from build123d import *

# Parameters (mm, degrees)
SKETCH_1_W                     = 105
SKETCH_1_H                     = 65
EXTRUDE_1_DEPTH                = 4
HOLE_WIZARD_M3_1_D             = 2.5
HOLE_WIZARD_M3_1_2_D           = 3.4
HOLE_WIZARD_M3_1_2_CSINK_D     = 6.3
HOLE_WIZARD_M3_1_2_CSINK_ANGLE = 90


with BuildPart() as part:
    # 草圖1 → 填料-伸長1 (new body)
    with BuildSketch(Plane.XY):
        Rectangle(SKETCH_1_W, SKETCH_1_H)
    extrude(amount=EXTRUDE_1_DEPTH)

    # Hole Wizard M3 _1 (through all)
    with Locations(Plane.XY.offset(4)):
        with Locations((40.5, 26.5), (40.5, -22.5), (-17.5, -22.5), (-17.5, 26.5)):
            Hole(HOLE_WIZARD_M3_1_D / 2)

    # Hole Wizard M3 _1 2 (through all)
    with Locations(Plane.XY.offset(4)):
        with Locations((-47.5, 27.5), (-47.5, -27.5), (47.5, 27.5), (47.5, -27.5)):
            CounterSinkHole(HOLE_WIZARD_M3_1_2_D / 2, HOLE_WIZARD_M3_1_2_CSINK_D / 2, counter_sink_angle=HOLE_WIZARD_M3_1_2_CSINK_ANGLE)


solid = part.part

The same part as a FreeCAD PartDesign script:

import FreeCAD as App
import Part
import Sketcher

V = App.Vector
Q = App.Units.Quantity

doc = App.newDocument("Part")
body = doc.addObject("PartDesign::Body", "Body")

# Sketch on XY plane
sketch1 = body.newObject("Sketcher::SketchObject", "Sketch")
sketch1.AttachmentSupport = (doc.getObject("XY_Plane"), [""])
sketch1.MapMode = "FlatFace"
sketch1.addGeometry([
    Part.LineSegment(V(-52, 32, 0), V(-52, -32, 0)),
    Part.LineSegment(V(-52, -32, 0), V(52, -32, 0)),
    Part.LineSegment(V(52, -32, 0), V(52, 32, 0)),
    Part.LineSegment(V(52, 32, 0), V(-52, 32, 0)),
], False)
sketch1.addConstraint([
    Sketcher.Constraint("Coincident", 0, 2, 1, 1),
    Sketcher.Constraint("Coincident", 1, 2, 2, 1),
    Sketcher.Constraint("Coincident", 2, 2, 3, 1),
    Sketcher.Constraint("Coincident", 3, 2, 0, 1),
    Sketcher.Constraint("Vertical", 0),
    Sketcher.Constraint("Horizontal", 1),
    Sketcher.Constraint("Vertical", 2),
    Sketcher.Constraint("Horizontal", 3),
    Sketcher.Constraint("Symmetric", 0, 2, 2, 2, -1, 1),
    Sketcher.Constraint("DistanceX", 1, 1, 1, 2, Q("105 mm")),
    Sketcher.Constraint("DistanceY", 0, 2, 0, 1, Q("65 mm")),
])
pad1 = body.newObject("PartDesign::Pad", "Pad")
pad1.Profile = sketch1
pad1.Length = 4

# Sketch on XY plane
sketch2 = body.newObject("Sketcher::SketchObject", "Sketch001")
sketch2.AttachmentSupport = (doc.getObject("XY_Plane"), [""])
sketch2.MapMode = "FlatFace"
sketch2.AttachmentOffset = App.Placement(V(0, 0, 4), App.Rotation())
sketch2.addGeometry([
    Part.Circle(V(40.5, 26.5, 0), V(0, 0, 1), 1.2),
    Part.Circle(V(40.5, -22.5, 0), V(0, 0, 1), 1.2),
    Part.Circle(V(-17.5, -22.5, 0), V(0, 0, 1), 1.2),
    Part.Circle(V(-17.5, 26.5, 0), V(0, 0, 1), 1.2),
], False)
sketch2.addConstraint([
    Sketcher.Constraint("Equal", 0, 1),
    Sketcher.Constraint("Equal", 1, 2),
    Sketcher.Constraint("Equal", 2, 3),
    Sketcher.Constraint("Horizontal", 1, 3, 2, 3),
    Sketcher.Constraint("Horizontal", 0, 3, 3, 3),
    Sketcher.Constraint("Vertical", 0, 3, 1, 3),
    Sketcher.Constraint("Vertical", 2, 3, 3, 3),
    Sketcher.Constraint("Diameter", 0, Q("2.5 mm")),
    Sketcher.Constraint("DistanceY", 1, 3, 0, 3, Q("49 mm")),
    Sketcher.Constraint("DistanceX", 2, 3, 1, 3, Q("58 mm")),
    Sketcher.Constraint("DistanceX", -1, 1, 0, 3, Q("40.5 mm")),
    Sketcher.Constraint("DistanceY", -1, 1, 0, 3, Q("26.5 mm")),
])
doc.recompute()
hole = body.newObject("PartDesign::Hole", "Hole")
hole.Profile = sketch2
hole.ThreadType = "None"
hole.Diameter = 2.5
hole.DepthType = "ThroughAll"

# Sketch on XY plane
sketch3 = body.newObject("Sketcher::SketchObject", "Sketch002")
sketch3.AttachmentSupport = (doc.getObject("XY_Plane"), [""])
sketch3.MapMode = "FlatFace"
sketch3.AttachmentOffset = App.Placement(V(0, 0, 4), App.Rotation())
sketch3.addGeometry([
    Part.Circle(V(-47.5, 27.5, 0), V(0, 0, 1), 1.7),
    Part.Circle(V(-47.5, -27.5, 0), V(0, 0, 1), 1.7),
    Part.Circle(V(47.5, 27.5, 0), V(0, 0, 1), 1.7),
    Part.Circle(V(47.5, -27.5, 0), V(0, 0, 1), 1.7),
], False)
sketch3.addConstraint([
    Sketcher.Constraint("Equal", 0, 1),
    Sketcher.Constraint("Equal", 1, 2),
    Sketcher.Constraint("Equal", 2, 3),
    Sketcher.Constraint("Symmetric", 1, 3, 2, 3, -1, 1),
    Sketcher.Constraint("Symmetric", 0, 3, 3, 3, -1, 1),
    Sketcher.Constraint("Symmetric", 0, 3, 2, 3, -2),
    Sketcher.Constraint("Diameter", 0, Q("3.4 mm")),
    Sketcher.Constraint("DistanceY", 1, 3, 0, 3, Q("55 mm")),
    Sketcher.Constraint("DistanceX", 0, 3, 2, 3, Q("95 mm")),
])
doc.recompute()
hole2 = body.newObject("PartDesign::Hole", "Hole001")
hole2.Profile = sketch3
hole2.ThreadType = "None"
hole2.Diameter = 3.4
hole2.DepthType = "ThroughAll"
hole2.HoleCutType = "Countersink"
hole2.HoleCutDiameter = 6.3
hole2.HoleCutCountersinkAngle = 90

doc.recompute()
